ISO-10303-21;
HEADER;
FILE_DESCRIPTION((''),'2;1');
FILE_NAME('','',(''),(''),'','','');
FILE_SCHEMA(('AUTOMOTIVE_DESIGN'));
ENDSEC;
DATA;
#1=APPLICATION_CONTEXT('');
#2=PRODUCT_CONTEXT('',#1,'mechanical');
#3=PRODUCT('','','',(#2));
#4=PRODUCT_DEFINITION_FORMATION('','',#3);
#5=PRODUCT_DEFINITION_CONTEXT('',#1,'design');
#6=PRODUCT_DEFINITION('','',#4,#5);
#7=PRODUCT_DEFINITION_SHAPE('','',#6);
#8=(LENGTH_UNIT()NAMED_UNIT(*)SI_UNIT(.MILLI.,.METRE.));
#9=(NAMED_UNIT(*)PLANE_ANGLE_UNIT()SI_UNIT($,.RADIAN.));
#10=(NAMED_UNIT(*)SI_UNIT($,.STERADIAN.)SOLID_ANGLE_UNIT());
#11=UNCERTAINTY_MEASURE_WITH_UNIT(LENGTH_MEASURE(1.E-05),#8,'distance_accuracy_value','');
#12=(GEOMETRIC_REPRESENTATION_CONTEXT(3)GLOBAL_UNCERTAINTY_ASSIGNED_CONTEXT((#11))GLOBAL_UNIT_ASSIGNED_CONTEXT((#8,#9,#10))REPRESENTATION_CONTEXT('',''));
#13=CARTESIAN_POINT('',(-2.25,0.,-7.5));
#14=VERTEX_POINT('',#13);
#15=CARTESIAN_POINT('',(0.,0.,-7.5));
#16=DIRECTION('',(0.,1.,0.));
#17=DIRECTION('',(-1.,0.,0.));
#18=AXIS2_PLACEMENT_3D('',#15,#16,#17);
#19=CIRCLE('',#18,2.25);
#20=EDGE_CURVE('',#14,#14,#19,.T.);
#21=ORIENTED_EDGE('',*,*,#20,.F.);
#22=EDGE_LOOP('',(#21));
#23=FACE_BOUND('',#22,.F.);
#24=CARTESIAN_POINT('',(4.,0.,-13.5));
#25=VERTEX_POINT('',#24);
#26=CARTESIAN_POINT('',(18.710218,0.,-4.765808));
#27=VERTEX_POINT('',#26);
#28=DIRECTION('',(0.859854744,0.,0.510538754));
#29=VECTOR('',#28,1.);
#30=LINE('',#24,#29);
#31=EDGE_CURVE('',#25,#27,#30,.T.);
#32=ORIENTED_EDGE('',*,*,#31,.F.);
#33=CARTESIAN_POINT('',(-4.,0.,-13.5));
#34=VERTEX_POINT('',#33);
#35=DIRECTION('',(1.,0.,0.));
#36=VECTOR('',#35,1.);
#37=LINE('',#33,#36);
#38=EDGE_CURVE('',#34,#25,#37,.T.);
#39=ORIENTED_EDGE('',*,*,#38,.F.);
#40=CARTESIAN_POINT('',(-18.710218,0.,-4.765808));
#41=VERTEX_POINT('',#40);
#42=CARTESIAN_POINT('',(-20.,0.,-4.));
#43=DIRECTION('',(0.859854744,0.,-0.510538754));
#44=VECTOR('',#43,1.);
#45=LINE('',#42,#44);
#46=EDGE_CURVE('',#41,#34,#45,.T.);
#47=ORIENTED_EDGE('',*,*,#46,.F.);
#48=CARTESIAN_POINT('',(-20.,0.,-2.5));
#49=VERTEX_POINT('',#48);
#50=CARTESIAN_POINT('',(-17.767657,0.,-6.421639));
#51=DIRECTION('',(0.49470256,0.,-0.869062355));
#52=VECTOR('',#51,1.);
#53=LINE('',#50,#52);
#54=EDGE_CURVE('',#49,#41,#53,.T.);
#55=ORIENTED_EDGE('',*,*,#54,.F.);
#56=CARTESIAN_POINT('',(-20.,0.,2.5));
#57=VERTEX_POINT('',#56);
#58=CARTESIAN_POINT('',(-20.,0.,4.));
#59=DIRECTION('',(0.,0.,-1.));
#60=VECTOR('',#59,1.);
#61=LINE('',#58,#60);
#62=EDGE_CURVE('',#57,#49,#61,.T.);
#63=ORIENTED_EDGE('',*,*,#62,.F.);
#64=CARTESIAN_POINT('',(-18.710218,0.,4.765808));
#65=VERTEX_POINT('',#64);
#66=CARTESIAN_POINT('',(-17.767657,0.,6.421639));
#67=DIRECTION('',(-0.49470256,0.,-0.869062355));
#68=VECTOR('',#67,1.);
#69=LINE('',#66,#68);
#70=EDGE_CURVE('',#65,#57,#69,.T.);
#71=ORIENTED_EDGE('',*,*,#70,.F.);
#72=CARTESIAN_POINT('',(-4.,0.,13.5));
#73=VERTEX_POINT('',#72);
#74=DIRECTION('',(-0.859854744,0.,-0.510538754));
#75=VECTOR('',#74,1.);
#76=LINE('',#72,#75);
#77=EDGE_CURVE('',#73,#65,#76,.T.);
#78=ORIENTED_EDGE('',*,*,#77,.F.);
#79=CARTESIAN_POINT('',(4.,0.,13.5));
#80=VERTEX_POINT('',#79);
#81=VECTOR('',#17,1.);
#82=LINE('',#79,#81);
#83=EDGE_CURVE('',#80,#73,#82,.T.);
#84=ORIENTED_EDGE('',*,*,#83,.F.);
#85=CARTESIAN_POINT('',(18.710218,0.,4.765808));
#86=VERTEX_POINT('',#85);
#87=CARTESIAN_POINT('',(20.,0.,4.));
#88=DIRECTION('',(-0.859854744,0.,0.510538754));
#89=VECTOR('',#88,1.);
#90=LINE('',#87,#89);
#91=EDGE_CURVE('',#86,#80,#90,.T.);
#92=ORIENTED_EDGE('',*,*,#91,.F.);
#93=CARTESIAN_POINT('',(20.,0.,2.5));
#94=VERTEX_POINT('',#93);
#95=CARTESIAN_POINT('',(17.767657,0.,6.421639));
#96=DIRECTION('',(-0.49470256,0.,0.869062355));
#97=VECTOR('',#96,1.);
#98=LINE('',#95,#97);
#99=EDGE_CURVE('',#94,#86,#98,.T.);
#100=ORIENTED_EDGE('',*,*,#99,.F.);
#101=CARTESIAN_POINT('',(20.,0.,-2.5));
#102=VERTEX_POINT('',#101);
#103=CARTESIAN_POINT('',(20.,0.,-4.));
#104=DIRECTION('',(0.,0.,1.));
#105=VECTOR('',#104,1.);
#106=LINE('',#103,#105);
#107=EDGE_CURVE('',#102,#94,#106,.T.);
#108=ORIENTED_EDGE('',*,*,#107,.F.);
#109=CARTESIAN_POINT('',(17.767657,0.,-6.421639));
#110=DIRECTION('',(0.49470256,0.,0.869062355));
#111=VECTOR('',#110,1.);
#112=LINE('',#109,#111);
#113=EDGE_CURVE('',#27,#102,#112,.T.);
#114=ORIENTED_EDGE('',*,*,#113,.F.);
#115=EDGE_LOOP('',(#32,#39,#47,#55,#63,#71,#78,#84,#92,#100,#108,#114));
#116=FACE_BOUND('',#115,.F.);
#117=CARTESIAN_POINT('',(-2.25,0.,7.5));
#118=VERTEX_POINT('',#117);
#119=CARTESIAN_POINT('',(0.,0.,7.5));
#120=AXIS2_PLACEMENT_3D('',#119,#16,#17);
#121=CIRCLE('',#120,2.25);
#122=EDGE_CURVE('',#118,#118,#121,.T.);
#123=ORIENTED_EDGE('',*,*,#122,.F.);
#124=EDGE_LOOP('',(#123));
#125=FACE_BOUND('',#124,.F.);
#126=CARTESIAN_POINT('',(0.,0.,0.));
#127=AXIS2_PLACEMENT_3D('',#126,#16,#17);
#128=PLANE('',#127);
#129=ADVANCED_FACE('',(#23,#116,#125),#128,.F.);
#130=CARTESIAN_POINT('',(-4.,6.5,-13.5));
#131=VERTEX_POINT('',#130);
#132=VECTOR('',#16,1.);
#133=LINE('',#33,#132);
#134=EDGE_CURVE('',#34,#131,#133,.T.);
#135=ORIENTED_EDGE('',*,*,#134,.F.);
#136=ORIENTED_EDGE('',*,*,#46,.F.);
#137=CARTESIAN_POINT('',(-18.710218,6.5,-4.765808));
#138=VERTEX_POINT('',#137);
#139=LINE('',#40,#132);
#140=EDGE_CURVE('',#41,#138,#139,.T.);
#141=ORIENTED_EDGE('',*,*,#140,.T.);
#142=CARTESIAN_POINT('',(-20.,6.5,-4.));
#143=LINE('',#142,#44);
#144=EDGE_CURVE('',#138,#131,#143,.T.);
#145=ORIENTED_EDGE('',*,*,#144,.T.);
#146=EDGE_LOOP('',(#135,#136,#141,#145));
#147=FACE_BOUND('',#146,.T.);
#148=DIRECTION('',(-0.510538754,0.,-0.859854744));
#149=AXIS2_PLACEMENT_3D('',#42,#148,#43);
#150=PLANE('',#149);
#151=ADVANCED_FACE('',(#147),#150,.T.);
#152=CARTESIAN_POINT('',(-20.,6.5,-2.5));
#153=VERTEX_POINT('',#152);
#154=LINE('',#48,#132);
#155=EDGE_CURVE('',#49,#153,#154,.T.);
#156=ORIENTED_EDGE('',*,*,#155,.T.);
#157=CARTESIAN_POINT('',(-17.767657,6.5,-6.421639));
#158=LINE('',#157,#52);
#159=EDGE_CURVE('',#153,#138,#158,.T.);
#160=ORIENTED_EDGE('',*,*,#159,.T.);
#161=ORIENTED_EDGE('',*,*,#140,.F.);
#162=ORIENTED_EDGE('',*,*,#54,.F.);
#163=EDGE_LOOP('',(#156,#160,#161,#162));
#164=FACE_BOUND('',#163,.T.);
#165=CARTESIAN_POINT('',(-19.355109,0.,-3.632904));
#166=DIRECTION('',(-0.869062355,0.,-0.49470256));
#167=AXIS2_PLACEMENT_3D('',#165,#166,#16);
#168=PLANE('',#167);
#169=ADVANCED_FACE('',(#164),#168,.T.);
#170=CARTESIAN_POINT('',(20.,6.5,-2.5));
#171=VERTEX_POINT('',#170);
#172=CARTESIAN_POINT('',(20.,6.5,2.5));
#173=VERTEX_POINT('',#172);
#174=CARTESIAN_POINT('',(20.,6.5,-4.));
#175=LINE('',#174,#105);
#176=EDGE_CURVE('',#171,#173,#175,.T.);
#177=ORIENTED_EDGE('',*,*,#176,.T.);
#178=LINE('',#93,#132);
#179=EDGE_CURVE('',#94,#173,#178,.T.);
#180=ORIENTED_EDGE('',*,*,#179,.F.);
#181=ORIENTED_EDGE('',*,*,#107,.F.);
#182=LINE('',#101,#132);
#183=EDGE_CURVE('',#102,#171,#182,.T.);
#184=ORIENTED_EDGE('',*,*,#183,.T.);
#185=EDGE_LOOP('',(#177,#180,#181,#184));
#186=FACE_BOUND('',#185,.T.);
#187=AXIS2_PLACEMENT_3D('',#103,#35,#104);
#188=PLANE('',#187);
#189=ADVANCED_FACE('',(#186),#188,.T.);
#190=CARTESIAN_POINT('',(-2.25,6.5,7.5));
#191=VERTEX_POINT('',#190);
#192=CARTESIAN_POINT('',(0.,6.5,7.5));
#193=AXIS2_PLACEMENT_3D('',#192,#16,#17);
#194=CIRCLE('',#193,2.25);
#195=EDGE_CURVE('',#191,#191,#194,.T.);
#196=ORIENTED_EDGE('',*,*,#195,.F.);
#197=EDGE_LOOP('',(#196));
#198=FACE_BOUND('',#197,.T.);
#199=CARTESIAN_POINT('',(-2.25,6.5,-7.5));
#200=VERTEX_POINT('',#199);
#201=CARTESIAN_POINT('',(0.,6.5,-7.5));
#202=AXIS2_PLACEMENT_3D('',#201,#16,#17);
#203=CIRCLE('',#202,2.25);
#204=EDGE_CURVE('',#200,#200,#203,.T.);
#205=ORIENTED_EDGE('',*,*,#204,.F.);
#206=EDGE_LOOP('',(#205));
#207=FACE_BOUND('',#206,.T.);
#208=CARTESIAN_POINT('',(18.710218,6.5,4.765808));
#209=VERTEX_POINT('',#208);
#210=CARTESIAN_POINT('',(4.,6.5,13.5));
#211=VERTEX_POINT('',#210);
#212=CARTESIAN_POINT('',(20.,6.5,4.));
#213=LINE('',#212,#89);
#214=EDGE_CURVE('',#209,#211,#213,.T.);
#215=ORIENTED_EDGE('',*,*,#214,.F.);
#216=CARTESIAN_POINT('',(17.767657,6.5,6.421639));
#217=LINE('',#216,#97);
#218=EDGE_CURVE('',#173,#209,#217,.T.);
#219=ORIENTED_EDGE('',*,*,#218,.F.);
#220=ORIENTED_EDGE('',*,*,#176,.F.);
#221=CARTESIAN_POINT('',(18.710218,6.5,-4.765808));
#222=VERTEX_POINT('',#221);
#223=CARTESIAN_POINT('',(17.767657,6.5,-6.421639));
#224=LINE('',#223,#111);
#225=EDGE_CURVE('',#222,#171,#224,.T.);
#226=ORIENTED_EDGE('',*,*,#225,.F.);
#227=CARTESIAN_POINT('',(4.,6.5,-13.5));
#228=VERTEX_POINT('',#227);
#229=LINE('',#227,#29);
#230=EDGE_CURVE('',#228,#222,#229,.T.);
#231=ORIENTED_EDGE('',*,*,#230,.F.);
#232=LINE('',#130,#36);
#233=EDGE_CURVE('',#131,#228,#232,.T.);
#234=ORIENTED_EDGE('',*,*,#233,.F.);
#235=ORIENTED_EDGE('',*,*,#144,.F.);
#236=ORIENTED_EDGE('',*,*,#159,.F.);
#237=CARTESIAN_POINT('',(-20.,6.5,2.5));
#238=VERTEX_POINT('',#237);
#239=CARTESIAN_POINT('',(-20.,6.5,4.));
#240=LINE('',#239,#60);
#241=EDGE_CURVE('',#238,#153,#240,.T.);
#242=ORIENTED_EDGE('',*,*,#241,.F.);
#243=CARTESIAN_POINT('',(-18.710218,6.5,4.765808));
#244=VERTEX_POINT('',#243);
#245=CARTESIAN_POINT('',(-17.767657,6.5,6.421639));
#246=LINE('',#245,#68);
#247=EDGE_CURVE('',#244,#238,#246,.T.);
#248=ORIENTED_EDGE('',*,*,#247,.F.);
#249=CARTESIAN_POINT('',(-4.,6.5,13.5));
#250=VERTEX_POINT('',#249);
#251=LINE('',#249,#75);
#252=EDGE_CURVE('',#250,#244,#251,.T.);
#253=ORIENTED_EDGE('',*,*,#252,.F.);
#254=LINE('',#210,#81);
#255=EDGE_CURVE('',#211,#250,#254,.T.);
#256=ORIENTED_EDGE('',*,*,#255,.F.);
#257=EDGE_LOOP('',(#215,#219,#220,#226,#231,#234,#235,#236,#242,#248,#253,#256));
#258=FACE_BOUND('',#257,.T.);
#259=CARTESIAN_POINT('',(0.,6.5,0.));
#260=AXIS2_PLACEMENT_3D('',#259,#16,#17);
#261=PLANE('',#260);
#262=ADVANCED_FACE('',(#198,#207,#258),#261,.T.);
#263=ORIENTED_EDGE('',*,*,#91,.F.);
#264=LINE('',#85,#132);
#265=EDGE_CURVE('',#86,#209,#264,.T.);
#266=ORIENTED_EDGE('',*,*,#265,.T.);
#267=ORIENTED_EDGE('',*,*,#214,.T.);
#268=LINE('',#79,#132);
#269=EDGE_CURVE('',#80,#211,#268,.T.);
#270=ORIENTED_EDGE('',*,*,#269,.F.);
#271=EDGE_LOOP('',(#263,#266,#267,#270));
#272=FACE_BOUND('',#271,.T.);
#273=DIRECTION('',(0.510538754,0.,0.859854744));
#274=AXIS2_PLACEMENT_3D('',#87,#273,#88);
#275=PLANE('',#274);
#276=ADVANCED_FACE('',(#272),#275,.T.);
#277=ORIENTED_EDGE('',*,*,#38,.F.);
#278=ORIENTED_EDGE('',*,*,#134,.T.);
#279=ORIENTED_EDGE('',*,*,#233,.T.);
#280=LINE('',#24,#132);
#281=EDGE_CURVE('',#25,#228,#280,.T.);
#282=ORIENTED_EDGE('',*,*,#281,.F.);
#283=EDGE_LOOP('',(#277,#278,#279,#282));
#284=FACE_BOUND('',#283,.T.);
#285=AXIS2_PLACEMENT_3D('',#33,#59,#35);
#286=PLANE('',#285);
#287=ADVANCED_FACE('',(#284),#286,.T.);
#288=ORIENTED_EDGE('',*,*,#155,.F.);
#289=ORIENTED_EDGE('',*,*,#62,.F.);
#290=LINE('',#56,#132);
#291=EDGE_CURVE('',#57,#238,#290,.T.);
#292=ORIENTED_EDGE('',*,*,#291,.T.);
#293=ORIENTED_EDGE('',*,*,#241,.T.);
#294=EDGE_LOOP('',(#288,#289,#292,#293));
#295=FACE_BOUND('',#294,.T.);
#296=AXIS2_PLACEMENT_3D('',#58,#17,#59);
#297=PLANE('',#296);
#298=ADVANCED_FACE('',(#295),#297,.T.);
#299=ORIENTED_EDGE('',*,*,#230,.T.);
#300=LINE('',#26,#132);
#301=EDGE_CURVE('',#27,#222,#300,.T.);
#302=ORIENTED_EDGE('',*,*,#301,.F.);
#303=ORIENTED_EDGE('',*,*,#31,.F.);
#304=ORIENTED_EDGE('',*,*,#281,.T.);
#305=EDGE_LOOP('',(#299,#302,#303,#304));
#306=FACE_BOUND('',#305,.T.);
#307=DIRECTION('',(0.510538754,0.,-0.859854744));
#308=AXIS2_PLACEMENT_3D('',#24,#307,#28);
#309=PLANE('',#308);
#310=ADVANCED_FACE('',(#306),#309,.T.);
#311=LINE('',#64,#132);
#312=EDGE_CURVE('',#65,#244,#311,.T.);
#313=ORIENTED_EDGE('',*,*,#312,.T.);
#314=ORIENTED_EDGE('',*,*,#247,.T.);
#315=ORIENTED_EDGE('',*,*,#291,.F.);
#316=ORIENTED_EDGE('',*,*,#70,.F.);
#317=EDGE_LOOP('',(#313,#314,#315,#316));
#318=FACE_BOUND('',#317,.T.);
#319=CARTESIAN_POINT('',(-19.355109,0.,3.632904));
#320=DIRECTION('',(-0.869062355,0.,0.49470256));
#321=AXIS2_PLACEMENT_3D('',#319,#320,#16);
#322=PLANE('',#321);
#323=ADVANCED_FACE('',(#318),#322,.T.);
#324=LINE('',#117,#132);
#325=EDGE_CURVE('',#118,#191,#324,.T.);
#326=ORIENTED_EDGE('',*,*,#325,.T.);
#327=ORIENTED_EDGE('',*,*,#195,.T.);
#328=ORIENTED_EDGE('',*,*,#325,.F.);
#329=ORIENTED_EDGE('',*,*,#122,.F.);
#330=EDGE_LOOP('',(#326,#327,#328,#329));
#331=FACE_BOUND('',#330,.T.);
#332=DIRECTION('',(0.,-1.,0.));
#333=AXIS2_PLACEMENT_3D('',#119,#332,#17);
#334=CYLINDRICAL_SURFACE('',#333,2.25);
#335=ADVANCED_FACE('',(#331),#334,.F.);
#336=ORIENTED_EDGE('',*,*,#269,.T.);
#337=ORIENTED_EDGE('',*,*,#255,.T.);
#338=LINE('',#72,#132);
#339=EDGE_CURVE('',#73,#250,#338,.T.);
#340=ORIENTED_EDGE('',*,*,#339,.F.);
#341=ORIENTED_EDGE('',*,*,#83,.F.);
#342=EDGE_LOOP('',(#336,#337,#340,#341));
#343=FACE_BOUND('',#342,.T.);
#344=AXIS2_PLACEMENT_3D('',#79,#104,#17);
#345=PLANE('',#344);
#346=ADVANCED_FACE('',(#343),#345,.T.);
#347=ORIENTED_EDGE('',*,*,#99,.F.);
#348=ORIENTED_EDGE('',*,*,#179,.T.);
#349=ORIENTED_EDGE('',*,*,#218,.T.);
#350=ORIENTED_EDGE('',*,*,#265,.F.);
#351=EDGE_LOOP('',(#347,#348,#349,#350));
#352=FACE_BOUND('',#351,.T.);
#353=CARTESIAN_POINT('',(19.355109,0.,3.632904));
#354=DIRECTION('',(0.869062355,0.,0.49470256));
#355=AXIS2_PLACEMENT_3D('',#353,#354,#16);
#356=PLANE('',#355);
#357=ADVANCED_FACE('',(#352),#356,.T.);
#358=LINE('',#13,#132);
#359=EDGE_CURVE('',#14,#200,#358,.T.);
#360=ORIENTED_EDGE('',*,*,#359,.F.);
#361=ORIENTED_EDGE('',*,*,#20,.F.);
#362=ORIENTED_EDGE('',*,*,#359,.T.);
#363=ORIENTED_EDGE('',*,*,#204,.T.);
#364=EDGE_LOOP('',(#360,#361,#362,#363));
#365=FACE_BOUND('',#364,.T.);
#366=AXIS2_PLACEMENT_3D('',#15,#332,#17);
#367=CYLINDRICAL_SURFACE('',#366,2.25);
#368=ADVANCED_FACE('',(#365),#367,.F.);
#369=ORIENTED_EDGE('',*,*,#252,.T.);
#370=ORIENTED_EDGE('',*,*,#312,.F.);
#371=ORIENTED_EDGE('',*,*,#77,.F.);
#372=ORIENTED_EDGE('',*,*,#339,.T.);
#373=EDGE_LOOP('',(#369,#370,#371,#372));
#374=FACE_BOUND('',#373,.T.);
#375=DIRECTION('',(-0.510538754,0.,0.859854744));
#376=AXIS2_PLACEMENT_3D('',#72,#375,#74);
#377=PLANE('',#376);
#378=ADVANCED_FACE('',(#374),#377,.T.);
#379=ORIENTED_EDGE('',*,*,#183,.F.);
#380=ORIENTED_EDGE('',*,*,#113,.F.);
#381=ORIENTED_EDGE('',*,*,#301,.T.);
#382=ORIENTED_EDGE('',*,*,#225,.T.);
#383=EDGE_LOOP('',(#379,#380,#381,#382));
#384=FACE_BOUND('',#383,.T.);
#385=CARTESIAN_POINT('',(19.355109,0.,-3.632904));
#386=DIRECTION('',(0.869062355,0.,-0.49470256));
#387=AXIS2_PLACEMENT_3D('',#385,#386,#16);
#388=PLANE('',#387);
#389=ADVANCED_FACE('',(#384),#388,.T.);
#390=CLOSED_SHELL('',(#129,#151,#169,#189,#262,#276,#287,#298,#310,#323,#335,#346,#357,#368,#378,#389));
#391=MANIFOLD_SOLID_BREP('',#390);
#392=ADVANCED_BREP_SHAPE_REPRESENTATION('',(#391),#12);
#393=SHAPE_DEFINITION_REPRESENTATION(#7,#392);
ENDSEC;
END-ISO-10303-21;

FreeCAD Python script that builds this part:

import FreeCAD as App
import Part
import Sketcher

V = App.Vector
Q = App.Units.Quantity


def edges_at(feature, points):
    """Names of the edges that pass closest to the given points."""
    edges = feature.Shape.Edges
    near = lambda p: min(range(len(edges)), key=lambda i: edges[i].distToShape(Part.Vertex(*p))[0])
    return sorted({f"Edge{near(p) + 1}" for p in points})

doc = App.newDocument("Part")
params = doc.addObject("Spreadsheet::Sheet", "Params")
for row, (alias, value) in enumerate([
    ("sketch1_diameter", "4.5 mm"),
    ("sketch1_width", "8 mm"),
    ("pad1_length", "6.5 mm"),
    ("chamfer_size", "1.5 mm"),
], start=1):
    params.set(f"A{row}", alias)
    params.set(f"B{row}", "=" + value)
    params.setAlias(f"B{row}", alias)

body = doc.addObject("PartDesign::Body", "Body")

# Sketch on XZ plane
sketch1 = body.newObject("Sketcher::SketchObject", "Sketch")
sketch1.AttachmentSupport = (doc.getObject("XZ_Plane"), [""])
sketch1.MapMode = "FlatFace"
sketch1.addGeometry(Part.LineSegment(V(4, -13.5, 0), V(-4, -13.5, 0)), False)
sketch1.addGeometry(Part.LineSegment(V(-4, -13.5, 0), V(-20, -4, 0)), False)
sketch1.addGeometry(Part.LineSegment(V(-20, -4, 0), V(-20, 4, 0)), False)
sketch1.addGeometry(Part.LineSegment(V(-20, 4, 0), V(-4, 13.5, 0)), False)
sketch1.addGeometry(Part.LineSegment(V(-4, 13.5, 0), V(4, 13.5, 0)), False)
sketch1.addGeometry(Part.LineSegment(V(4, 13.5, 0), V(20, 4, 0)), False)
sketch1.addGeometry(Part.LineSegment(V(20, 4, 0), V(20, -4, 0)), False)
sketch1.addGeometry(Part.LineSegment(V(20, -4, 0), V(4, -13.5, 0)), False)
sketch1.addGeometry(Part.Circle(V(0, -7.5, 0), V(0, 0, 1), 2.2), False)
sketch1.addGeometry(Part.Circle(V(0, 7.5, 0), V(0, 0, 1), 2.2), False)
sketch1.addConstraint(Sketcher.Constraint("Coincident", 0, 2, 1, 1))
sketch1.addConstraint(Sketcher.Constraint("Coincident", 1, 2, 2, 1))
sketch1.addConstraint(Sketcher.Constraint("Coincident", 2, 2, 3, 1))
sketch1.addConstraint(Sketcher.Constraint("Coincident", 3, 2, 4, 1))
sketch1.addConstraint(Sketcher.Constraint("Coincident", 4, 2, 5, 1))
sketch1.addConstraint(Sketcher.Constraint("Coincident", 5, 2, 6, 1))
sketch1.addConstraint(Sketcher.Constraint("Coincident", 6, 2, 7, 1))
sketch1.addConstraint(Sketcher.Constraint("Coincident", 7, 2, 0, 1))
sketch1.addConstraint(Sketcher.Constraint("Horizontal", 0))
sketch1.addConstraint(Sketcher.Constraint("Vertical", 2))
sketch1.addConstraint(Sketcher.Constraint("Horizontal", 4))
sketch1.addConstraint(Sketcher.Constraint("Vertical", 6))
sketch1.addConstraint(Sketcher.Constraint("Equal", 8, 9))
sketch1.addConstraint(Sketcher.Constraint("Symmetric", 8, 3, 9, 3, -1, 1))
sketch1.addConstraint(Sketcher.Constraint("Symmetric", 0, 2, 4, 2, -1, 1))
sketch1.addConstraint(Sketcher.Constraint("Symmetric", 1, 2, 5, 2, -1, 1))
sketch1.addConstraint(Sketcher.Constraint("PointOnObject", 8, 3, -2))
sketch1.addConstraint(Sketcher.Constraint("Parallel", 3, 7))
sketch1.addConstraint(Sketcher.Constraint("Horizontal", 2, 2, 5, 2))
sketch1.addConstraint(Sketcher.Constraint("Horizontal", 1, 2, 6, 2))
sketch1.addConstraint(Sketcher.Constraint("Vertical", 0, 2, 3, 2))
sketch1.addConstraint(Sketcher.Constraint("Equal", 4, 2))
sketch1.addConstraint(Sketcher.Constraint("Diameter", 8, Q("4.5 mm")))
sketch1.addConstraint(Sketcher.Constraint("DistanceX", 0, 2, 0, 1, Q("8 mm")))
sketch1.addConstraint(Sketcher.Constraint("DistanceX", 1, 2, -1, 1, Q("20 mm")))
sketch1.addConstraint(Sketcher.Constraint("DistanceY", 8, 3, 9, 3, Q("15 mm")))
sketch1.addConstraint(Sketcher.Constraint("DistanceY", 0, 2, 8, 3, Q("6 mm")))
sketch1.setExpression("Constraints[22]", "Params.sketch1_diameter")
sketch1.setExpression("Constraints[23]", "Params.sketch1_width")
pad1 = body.newObject("PartDesign::Pad", "Pad")
pad1.Profile = sketch1
pad1.setExpression("Length", "Params.pad1_length")
pad1.Reversed = True
doc.recompute()

chamfer = body.newObject("PartDesign::Chamfer", "Chamfer")
chamfer.Base = (pad1, edges_at(pad1, [
    (20, 3.25, 4),
    (20, 3.25, -4),
    (-20, 3.25, -4),
    (-20, 3.25, 4),
]))
chamfer.setExpression("Size", "Params.chamfer_size")

doc.recompute()
